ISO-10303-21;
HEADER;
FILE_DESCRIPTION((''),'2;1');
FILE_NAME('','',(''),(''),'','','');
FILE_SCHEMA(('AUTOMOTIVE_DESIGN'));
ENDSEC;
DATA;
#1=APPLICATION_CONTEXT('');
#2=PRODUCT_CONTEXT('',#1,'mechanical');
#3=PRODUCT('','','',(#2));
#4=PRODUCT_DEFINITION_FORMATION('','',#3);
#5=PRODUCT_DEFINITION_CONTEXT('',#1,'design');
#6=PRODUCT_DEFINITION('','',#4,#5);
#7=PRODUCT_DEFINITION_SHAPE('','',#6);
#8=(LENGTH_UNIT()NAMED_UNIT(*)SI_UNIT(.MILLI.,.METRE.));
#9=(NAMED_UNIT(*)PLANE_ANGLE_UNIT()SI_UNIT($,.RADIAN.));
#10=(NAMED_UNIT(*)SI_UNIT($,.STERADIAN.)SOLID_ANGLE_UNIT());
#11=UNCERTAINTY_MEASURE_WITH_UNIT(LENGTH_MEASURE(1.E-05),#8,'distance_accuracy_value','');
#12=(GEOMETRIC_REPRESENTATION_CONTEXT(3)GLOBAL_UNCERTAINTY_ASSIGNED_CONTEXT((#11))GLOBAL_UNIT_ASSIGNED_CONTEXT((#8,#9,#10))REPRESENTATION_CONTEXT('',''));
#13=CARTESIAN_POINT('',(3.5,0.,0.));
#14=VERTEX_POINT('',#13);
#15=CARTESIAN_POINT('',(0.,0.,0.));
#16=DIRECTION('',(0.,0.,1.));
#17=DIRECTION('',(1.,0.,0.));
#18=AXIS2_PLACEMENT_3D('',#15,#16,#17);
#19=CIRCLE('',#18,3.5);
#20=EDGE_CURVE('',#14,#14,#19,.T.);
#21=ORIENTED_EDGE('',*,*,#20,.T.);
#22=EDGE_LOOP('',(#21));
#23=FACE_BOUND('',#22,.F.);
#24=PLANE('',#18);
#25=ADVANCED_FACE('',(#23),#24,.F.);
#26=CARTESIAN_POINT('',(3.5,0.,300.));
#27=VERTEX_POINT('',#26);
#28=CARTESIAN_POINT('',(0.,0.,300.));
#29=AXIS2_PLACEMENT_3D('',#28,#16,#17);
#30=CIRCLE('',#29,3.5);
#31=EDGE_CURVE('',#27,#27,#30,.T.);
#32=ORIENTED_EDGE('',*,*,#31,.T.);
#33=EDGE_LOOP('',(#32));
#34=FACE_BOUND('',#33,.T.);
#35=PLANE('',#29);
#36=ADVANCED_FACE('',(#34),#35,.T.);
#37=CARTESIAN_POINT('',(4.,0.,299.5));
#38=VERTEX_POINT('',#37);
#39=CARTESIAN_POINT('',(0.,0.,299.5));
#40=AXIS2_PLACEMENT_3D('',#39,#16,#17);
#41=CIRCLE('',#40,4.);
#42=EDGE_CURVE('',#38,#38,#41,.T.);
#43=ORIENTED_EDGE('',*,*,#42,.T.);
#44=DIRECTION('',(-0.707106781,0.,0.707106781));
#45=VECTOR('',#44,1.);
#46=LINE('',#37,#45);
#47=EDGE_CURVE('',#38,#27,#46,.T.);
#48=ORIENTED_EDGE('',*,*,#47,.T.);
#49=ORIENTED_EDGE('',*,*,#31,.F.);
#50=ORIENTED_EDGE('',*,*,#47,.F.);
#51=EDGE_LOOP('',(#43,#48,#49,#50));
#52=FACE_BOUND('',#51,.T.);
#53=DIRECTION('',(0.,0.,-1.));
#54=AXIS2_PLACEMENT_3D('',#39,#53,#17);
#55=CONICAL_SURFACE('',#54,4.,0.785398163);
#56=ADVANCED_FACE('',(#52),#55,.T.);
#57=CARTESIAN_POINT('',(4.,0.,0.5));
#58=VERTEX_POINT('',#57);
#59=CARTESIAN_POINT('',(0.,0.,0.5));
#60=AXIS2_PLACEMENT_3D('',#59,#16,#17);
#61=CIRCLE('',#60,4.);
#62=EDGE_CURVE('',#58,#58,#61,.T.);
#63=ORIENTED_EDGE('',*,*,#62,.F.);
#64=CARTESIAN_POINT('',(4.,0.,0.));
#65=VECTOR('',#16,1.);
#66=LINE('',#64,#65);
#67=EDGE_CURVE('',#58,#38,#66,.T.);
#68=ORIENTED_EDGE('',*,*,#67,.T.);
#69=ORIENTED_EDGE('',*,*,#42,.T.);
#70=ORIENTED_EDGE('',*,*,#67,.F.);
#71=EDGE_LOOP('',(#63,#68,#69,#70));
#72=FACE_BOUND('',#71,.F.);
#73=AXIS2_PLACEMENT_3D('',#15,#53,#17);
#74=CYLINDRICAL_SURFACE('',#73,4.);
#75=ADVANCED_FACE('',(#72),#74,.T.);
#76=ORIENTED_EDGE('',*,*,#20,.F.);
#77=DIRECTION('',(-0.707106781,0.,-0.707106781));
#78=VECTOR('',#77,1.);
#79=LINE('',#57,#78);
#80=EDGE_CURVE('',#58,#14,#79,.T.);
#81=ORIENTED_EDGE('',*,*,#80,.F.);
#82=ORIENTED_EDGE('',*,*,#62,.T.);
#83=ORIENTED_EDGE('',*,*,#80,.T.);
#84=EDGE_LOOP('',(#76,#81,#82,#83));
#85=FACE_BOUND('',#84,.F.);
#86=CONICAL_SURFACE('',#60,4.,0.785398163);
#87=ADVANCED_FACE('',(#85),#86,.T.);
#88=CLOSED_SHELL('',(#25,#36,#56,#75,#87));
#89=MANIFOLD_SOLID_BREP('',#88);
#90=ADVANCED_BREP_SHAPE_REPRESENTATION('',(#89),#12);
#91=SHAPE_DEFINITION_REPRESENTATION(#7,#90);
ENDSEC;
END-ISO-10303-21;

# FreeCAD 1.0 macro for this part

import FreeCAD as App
import Part
import Sketcher


def edges_at(feature, points):
    """Names of the edges that pass closest to the given points."""
    edges = feature.Shape.Edges
    near = lambda p: min(range(len(edges)), key=lambda i: edges[i].distToShape(Part.Vertex(*p))[0])
    return sorted({f"Edge{near(p) + 1}" for p in points})

doc = App.newDocument("Part")
body = doc.addObject("PartDesign::Body", "Body")

sketch1 = body.newObject("Sketcher::SketchObject", "Sketch")
sketch1.AttachmentSupport = (doc.getObject("XY_Plane"), [""])
sketch1.MapMode = "FlatFace"
sketch1.addGeometry(Part.Circle(App.Vector(0, 0, 0), App.Vector(0, 0, 1), 4), False)
sketch1.addConstraint(Sketcher.Constraint("Coincident", 0, 3, -1, 1))
sketch1.addConstraint(Sketcher.Constraint("Diameter", 0, 8.0))
pad1 = body.newObject("PartDesign::Pad", "Pad")
pad1.Profile = sketch1
pad1.Length = 300
doc.recompute()

chamfer = body.newObject("PartDesign::Chamfer", "Chamfer")
chamfer.Base = (pad1, edges_at(pad1, [(-4, 0, 0), (-4, 0, 300)]))
chamfer.Size = 0.5

doc.recompute()
